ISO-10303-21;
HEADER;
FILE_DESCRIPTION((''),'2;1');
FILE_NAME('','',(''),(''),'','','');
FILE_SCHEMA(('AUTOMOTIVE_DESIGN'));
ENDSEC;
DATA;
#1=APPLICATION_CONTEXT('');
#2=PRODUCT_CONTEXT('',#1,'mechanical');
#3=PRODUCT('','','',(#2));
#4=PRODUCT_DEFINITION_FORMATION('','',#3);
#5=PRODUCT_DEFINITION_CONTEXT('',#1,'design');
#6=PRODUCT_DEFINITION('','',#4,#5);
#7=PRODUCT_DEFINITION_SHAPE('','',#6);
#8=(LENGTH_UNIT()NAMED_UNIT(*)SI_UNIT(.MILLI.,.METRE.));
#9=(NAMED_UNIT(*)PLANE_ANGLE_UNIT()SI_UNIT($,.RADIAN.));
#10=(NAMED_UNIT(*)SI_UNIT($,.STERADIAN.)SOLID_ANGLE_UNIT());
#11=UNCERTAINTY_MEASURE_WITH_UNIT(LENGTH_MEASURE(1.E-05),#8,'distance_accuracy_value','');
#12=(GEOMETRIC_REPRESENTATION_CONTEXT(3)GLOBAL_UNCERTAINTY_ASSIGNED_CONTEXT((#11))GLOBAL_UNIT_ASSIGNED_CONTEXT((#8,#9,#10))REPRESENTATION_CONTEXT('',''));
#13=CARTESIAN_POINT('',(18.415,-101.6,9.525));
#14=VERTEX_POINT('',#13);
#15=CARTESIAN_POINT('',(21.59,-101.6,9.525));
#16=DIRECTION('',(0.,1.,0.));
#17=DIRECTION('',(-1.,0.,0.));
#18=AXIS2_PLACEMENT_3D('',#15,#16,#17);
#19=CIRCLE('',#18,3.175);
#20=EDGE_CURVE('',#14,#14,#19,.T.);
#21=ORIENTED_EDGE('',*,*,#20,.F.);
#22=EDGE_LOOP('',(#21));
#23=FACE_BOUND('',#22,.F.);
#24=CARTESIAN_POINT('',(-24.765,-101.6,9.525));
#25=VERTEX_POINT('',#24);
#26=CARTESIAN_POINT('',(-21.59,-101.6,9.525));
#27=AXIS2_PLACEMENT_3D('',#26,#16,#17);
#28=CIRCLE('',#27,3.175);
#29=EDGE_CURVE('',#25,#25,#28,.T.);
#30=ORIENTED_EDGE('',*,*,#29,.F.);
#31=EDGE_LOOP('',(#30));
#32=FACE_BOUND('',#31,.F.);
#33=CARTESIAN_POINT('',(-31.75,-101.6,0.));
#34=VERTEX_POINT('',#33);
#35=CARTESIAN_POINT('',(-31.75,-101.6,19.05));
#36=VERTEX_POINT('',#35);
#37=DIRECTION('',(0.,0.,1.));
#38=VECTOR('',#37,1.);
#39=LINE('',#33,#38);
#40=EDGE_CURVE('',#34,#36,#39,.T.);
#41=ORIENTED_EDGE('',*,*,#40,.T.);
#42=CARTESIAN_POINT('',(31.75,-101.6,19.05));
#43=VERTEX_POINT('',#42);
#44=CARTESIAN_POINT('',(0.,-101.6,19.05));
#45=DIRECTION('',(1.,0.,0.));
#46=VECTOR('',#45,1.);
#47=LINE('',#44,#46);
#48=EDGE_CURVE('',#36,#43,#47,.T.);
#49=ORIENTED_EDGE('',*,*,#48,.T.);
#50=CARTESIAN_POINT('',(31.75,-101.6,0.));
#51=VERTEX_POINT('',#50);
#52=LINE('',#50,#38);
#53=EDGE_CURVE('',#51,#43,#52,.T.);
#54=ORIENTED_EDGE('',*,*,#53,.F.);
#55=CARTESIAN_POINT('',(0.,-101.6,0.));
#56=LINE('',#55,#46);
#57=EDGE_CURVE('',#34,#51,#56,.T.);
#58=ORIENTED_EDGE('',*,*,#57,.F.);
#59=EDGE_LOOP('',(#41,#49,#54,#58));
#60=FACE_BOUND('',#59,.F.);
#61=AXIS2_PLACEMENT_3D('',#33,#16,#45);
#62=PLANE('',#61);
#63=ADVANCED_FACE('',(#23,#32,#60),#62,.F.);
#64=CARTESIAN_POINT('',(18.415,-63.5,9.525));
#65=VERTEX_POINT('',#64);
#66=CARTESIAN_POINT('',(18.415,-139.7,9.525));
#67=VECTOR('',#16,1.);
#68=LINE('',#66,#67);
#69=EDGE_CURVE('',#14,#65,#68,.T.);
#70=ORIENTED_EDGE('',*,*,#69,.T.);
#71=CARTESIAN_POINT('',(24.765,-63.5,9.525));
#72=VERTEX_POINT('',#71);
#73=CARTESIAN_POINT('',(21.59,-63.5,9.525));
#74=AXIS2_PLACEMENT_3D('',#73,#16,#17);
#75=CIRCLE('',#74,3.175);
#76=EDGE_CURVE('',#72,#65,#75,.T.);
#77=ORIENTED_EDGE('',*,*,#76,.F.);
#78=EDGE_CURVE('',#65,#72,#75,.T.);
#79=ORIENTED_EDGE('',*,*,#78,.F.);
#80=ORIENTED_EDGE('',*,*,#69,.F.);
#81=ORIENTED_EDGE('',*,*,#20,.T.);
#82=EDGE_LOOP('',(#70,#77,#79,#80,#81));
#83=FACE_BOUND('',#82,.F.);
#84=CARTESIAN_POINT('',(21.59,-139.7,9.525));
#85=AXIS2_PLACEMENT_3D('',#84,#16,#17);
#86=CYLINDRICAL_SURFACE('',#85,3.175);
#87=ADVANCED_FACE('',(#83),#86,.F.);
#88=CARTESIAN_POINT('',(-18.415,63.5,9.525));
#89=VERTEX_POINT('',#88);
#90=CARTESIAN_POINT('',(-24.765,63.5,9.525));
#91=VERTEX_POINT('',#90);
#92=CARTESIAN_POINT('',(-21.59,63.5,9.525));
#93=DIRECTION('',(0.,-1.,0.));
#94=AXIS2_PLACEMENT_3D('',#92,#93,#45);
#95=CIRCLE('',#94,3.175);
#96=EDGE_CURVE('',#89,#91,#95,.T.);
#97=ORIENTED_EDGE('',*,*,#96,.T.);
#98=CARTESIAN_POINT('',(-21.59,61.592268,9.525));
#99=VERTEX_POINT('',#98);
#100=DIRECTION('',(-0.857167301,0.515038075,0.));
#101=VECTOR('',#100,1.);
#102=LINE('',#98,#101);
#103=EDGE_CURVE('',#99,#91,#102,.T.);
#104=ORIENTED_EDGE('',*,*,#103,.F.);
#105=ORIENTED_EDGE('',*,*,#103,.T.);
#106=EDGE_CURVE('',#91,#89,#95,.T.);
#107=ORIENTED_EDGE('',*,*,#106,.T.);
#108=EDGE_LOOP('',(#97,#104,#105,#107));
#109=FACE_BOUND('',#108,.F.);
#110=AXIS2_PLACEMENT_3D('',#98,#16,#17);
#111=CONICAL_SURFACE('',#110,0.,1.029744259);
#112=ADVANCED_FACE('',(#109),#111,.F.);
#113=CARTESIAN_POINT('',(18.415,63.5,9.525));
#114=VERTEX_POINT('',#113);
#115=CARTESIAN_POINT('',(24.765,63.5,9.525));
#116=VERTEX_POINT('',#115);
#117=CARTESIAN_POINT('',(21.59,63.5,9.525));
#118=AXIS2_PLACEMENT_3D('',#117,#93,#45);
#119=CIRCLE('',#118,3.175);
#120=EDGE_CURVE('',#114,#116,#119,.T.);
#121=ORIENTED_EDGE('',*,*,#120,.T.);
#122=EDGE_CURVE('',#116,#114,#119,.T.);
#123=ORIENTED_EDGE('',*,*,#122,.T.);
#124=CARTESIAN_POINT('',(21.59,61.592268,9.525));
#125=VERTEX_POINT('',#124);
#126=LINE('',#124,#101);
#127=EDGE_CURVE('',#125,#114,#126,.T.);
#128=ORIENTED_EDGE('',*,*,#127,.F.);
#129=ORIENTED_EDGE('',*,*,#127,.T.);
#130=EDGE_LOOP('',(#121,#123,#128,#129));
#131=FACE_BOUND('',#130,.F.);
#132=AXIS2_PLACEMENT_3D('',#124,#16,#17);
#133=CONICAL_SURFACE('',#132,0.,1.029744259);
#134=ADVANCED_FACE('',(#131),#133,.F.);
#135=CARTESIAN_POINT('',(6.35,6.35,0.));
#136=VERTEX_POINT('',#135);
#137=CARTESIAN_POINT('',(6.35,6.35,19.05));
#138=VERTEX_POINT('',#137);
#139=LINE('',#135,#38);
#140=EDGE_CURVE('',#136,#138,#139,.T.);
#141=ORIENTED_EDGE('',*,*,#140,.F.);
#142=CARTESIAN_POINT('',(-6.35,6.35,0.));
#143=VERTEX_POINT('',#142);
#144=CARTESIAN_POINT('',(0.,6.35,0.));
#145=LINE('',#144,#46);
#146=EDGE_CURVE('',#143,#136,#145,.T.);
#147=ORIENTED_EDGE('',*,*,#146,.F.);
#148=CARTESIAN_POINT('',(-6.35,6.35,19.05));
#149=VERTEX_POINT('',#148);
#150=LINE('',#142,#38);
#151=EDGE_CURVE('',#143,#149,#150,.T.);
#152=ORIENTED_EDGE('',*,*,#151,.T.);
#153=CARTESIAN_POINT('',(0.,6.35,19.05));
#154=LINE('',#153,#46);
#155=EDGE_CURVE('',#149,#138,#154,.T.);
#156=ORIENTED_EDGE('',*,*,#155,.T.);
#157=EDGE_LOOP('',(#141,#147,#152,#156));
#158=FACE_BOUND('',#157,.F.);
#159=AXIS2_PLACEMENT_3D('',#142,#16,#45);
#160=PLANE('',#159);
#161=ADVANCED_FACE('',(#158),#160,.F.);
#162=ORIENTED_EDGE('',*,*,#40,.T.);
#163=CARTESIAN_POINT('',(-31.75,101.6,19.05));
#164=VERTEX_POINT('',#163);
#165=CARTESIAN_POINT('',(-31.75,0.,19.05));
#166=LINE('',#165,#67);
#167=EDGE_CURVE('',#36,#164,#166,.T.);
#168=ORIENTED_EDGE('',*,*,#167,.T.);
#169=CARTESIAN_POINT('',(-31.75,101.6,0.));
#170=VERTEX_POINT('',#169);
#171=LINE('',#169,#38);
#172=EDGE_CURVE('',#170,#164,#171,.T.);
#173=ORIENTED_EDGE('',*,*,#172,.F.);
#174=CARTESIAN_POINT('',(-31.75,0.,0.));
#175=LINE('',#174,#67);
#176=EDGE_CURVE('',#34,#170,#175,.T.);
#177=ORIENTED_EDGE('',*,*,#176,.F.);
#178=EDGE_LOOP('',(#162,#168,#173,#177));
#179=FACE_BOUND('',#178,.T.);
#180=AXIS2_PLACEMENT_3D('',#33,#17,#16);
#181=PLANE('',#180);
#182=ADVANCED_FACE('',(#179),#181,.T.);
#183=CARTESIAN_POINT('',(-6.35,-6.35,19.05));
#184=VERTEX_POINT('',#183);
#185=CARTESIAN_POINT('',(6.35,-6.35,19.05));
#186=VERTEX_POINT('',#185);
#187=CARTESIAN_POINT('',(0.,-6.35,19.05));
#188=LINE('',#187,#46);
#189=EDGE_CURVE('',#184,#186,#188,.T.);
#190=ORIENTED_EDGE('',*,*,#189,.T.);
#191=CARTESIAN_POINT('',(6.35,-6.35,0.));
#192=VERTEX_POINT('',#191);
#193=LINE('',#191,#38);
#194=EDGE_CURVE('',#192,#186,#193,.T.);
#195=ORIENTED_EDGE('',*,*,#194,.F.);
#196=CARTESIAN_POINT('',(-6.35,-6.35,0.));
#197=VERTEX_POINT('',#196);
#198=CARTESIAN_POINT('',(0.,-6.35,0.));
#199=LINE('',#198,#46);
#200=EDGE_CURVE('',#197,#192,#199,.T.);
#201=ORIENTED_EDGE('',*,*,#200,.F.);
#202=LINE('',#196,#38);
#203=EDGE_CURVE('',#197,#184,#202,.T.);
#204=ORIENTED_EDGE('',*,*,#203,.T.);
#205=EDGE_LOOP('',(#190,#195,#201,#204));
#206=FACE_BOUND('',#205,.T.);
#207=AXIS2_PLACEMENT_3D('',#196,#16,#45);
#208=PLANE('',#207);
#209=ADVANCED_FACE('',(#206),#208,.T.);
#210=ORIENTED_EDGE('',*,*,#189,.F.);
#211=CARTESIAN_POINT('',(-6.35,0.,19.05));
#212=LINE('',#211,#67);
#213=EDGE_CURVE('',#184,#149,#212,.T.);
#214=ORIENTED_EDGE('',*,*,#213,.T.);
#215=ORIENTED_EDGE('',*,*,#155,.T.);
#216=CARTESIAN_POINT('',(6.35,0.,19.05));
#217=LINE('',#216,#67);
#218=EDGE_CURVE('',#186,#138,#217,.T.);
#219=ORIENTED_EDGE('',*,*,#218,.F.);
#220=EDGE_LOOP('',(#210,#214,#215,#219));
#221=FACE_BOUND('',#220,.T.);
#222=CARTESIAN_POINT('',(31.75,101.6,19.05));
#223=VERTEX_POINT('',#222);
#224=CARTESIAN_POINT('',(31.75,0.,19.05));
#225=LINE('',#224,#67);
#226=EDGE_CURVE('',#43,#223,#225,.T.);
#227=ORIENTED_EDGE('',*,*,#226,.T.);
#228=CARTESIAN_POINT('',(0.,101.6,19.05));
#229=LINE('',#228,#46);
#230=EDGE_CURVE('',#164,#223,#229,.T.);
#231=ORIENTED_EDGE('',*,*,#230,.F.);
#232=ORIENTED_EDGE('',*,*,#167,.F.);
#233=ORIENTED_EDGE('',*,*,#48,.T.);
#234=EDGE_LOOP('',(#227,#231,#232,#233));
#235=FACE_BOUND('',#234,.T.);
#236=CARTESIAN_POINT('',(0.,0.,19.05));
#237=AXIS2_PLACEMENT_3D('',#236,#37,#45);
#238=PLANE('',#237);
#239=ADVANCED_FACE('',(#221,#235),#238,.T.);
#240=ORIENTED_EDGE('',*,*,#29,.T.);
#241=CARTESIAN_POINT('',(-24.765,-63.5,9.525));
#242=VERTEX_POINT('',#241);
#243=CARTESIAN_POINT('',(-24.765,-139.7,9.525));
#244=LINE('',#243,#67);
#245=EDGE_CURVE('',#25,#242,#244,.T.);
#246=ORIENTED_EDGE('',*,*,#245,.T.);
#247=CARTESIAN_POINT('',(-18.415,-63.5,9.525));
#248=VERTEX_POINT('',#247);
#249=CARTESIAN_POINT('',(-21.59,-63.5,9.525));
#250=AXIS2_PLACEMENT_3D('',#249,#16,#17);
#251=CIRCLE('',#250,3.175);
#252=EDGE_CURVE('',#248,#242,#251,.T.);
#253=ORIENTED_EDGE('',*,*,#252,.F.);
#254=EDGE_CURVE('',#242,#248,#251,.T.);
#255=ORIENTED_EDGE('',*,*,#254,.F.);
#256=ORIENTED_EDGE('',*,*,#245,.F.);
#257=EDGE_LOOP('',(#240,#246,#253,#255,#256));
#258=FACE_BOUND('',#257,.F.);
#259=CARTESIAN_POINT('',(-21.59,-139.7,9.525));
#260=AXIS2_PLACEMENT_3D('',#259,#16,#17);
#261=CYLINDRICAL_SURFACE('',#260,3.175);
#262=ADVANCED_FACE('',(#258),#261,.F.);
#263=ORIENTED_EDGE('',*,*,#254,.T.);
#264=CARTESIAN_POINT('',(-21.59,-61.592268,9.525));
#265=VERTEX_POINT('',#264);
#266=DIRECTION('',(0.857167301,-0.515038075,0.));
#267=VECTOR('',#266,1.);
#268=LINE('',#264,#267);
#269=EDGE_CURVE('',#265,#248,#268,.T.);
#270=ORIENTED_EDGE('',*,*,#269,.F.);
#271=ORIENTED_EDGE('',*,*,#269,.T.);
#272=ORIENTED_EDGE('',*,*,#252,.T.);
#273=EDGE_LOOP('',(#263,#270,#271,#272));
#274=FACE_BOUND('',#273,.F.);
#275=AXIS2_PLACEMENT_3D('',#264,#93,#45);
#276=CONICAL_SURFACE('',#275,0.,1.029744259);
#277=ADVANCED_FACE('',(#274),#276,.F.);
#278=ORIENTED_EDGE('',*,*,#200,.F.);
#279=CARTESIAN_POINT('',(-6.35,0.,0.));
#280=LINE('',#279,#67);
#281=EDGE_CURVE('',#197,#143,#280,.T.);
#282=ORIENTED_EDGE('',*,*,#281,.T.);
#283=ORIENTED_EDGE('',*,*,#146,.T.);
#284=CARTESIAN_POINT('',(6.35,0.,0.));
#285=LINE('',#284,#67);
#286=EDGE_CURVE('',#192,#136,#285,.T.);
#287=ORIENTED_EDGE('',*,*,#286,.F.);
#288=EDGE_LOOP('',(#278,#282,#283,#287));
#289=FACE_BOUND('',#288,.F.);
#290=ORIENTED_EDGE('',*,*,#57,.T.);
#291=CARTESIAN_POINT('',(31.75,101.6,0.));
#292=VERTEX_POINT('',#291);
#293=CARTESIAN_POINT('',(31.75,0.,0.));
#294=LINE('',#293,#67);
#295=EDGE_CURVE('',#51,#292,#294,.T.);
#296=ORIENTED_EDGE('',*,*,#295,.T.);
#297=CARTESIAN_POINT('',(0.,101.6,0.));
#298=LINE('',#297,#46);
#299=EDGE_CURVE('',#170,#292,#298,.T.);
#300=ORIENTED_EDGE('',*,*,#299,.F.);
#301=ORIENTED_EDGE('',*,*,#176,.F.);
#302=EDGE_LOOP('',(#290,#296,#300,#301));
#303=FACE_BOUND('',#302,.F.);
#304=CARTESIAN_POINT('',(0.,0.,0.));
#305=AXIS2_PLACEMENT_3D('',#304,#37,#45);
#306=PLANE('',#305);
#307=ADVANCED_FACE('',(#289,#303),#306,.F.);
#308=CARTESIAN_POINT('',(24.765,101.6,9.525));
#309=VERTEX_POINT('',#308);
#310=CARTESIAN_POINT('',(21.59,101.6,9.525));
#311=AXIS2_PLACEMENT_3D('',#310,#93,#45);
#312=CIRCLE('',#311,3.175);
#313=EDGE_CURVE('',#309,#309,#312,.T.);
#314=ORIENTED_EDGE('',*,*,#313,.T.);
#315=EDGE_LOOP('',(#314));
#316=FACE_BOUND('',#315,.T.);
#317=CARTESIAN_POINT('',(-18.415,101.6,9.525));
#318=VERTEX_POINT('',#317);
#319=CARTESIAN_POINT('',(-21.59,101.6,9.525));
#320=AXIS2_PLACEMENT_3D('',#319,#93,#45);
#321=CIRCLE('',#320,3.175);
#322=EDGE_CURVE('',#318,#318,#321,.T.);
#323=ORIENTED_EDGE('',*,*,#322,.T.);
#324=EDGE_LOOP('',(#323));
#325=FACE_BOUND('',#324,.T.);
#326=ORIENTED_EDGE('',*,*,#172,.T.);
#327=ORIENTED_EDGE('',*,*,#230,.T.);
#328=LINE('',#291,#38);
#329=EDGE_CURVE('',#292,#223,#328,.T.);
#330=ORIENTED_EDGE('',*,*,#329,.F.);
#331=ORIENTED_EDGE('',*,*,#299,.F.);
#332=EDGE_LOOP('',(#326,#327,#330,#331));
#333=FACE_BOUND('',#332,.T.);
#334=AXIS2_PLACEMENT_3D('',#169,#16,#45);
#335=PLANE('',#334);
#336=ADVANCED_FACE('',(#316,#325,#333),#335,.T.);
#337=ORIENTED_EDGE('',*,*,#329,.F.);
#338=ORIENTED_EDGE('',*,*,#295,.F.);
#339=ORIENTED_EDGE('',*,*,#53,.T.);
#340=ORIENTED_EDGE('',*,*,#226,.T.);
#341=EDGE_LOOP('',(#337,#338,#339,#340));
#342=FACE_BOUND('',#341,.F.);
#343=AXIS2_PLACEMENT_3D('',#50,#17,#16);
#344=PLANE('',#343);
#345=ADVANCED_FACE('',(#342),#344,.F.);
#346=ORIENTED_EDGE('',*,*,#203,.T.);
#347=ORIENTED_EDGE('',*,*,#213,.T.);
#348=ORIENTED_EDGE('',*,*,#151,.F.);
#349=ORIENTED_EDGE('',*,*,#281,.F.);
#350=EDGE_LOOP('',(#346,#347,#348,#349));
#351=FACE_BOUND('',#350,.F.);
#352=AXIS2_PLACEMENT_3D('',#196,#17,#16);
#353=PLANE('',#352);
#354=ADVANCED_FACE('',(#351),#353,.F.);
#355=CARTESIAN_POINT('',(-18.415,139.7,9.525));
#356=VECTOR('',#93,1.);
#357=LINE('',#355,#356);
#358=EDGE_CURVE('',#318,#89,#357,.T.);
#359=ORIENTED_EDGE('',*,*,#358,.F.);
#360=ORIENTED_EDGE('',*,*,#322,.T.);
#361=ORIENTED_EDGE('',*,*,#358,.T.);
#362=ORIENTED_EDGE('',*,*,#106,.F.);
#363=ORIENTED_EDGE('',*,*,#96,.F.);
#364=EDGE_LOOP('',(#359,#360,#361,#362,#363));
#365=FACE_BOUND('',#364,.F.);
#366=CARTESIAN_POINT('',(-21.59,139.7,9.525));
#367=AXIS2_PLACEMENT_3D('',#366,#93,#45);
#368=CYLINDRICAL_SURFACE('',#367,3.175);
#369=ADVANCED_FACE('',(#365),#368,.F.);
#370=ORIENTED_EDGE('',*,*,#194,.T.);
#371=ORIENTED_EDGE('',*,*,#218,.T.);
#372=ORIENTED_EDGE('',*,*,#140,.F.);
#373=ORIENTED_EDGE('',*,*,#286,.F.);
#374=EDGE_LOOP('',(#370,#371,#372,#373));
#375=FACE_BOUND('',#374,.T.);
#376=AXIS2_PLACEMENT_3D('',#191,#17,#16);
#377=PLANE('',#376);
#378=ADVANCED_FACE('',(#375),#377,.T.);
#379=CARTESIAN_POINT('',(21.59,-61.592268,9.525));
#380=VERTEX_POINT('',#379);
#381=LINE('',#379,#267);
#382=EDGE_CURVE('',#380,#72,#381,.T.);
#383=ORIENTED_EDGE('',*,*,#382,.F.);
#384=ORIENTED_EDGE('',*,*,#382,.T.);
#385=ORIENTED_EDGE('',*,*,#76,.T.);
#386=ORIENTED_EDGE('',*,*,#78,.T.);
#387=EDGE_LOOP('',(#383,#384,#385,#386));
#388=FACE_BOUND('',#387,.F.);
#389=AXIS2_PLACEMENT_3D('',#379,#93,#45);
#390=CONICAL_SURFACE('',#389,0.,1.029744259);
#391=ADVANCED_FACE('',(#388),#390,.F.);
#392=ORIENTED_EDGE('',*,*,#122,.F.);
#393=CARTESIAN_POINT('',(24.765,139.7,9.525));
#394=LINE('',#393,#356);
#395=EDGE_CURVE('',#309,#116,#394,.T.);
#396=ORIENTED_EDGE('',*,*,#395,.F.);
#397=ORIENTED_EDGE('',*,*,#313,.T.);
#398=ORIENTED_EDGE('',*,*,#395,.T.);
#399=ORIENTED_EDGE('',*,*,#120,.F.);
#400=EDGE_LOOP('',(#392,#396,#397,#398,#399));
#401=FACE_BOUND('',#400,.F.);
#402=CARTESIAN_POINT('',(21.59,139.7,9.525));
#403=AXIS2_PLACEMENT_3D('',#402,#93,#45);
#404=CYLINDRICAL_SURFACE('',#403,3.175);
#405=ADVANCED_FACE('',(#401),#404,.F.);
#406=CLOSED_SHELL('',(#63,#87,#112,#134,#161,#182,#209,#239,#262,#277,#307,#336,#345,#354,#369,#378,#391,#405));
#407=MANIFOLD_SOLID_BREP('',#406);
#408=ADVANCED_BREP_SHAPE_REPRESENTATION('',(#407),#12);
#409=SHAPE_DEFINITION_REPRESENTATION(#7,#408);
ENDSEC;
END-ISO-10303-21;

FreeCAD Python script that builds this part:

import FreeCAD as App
import Part
import Sketcher

V = App.Vector
Q = App.Units.Quantity

doc = App.newDocument("Part")
params = doc.addObject("Spreadsheet::Sheet", "Params")
for row, (alias, value) in enumerate([
    ("sketch1_height", "8 in"),
    ("sketch1_width", "2.5 in"),
    ("sketch1_width2", "0.5 in"),
    ("pad1_length", "0.75 in"),
    ("sketch2_diameter", "0.25 in"),
    ("hole_diameter", "0.25 in"),
    ("hole_depth", "1.5 in"),
    ("sketch3_diameter", "0.25 in"),
    ("hole2_diameter", "0.25 in"),
    ("hole2_depth", "1.5 in"),
], start=1):
    params.set(f"A{row}", alias)
    params.set(f"B{row}", "=" + value)
    params.setAlias(f"B{row}", alias)

body = doc.addObject("PartDesign::Body", "Body")

sketch1 = body.newObject("Sketcher::SketchObject", "Sketch")
sketch1.AttachmentSupport = (doc.getObject("XY_Plane"), [""])
sketch1.MapMode = "FlatFace"
sketch1.addGeometry([
    Part.LineSegment(V(-32, 102, 0), V(-32, -102, 0)),
    Part.LineSegment(V(-32, -102, 0), V(32, -102, 0)),
    Part.LineSegment(V(32, -102, 0), V(32, 102, 0)),
    Part.LineSegment(V(32, 102, 0), V(-32, 102, 0)),
    Part.LineSegment(V(6, -6, 0), V(-6, -6, 0)),
    Part.LineSegment(V(-6, -6, 0), V(-6, 6, 0)),
    Part.LineSegment(V(-6, 6, 0), V(6, 6, 0)),
    Part.LineSegment(V(6, 6, 0), V(6, -6, 0)),
], False)
sketch1.addConstraint([
    Sketcher.Constraint("Coincident", 0, 2, 1, 1),
    Sketcher.Constraint("Coincident", 1, 2, 2, 1),
    Sketcher.Constraint("Coincident", 2, 2, 3, 1),
    Sketcher.Constraint("Coincident", 3, 2, 0, 1),
    Sketcher.Constraint("Coincident", 4, 2, 5, 1),
    Sketcher.Constraint("Coincident", 5, 2, 6, 1),
    Sketcher.Constraint("Coincident", 6, 2, 7, 1),
    Sketcher.Constraint("Coincident", 7, 2, 4, 1),
    Sketcher.Constraint("Vertical", 0),
    Sketcher.Constraint("Horizontal", 1),
    Sketcher.Constraint("Vertical", 2),
    Sketcher.Constraint("Horizontal", 3),
    Sketcher.Constraint("Horizontal", 4),
    Sketcher.Constraint("Vertical", 5),
    Sketcher.Constraint("Horizontal", 6),
    Sketcher.Constraint("Vertical", 7),
    Sketcher.Constraint("Symmetric", 0, 2, 2, 2, -1, 1),
    Sketcher.Constraint("Symmetric", 4, 2, 6, 2, -1, 1),
    Sketcher.Constraint("Equal", 6, 5),
    Sketcher.Constraint("DistanceY", 0, 2, 0, 1, Q("8 in")),
    Sketcher.Constraint("DistanceX", 1, 1, 1, 2, Q("2.5 in")),
    Sketcher.Constraint("DistanceX", 4, 2, 4, 1, Q("0.5 in")),
])
sketch1.setExpression("Constraints[19]", "Params.sketch1_height")
sketch1.setExpression("Constraints[20]", "Params.sketch1_width")
sketch1.setExpression("Constraints[21]", "Params.sketch1_width2")
pad1 = body.newObject("PartDesign::Pad", "Pad")
pad1.Profile = sketch1
pad1.setExpression("Length", "Params.pad1_length")

sketch2 = body.newObject("Sketcher::SketchObject", "Sketch001")
sketch2.AttachmentSupport = (doc.getObject("XZ_Plane"), [""])
sketch2.MapMode = "FlatFace"
sketch2.AttachmentOffset = App.Placement(V(0, 0, 4 * 25.4), App.Rotation())
sketch2.addGeometry([
    Part.Circle(V(-21.6, 9.5, 0), V(0, 0, 1), 3.2),
    Part.Circle(V(21.6, 9.5, 0), V(0, 0, 1), 3.2),
], False)
sketch2.addConstraint([
    Sketcher.Constraint("Equal", 0, 1),
    Sketcher.Constraint("Symmetric", 0, 3, 1, 3, -2),
    Sketcher.Constraint("Diameter", 0, Q("0.25 in")),
    Sketcher.Constraint("DistanceX", 0, 3, 1, 3, Q("1.7 in")),
    Sketcher.Constraint("DistanceY", -1, 1, 0, 3, Q("0.375 in")),
])
sketch2.setExpression("Constraints[2]", "Params.sketch2_diameter")
doc.recompute()
hole = body.newObject("PartDesign::Hole", "Hole")
hole.Profile = sketch2
hole.ThreadType = "None"
hole.setExpression("Diameter", "Params.hole_diameter")
hole.DepthType = "Dimension"
hole.setExpression("Depth", "Params.hole_depth")
hole.DrillPoint = "Angled"
hole.DrillPointAngle = 118

sketch3 = body.newObject("Sketcher::SketchObject", "Sketch002")
sketch3.AttachmentSupport = (doc.getObject("XZ_Plane"), [""])
sketch3.MapMode = "FlatFace"
sketch3.AttachmentOffset = App.Placement(V(0, 0, -4 * 25.4), App.Rotation())
sketch3.addGeometry([
    Part.Circle(V(-21.6, 9.5, 0), V(0, 0, 1), 3.2),
    Part.Circle(V(21.6, 9.5, 0), V(0, 0, 1), 3.2),
], False)
sketch3.addConstraint([
    Sketcher.Constraint("Equal", 0, 1),
    Sketcher.Constraint("Symmetric", 0, 3, 1, 3, -2),
    Sketcher.Constraint("Diameter", 0, Q("0.25 in")),
    Sketcher.Constraint("DistanceX", 0, 3, 1, 3, Q("1.7 in")),
    Sketcher.Constraint("DistanceY", -1, 1, 0, 3, Q("0.375 in")),
])
sketch3.setExpression("Constraints[2]", "Params.sketch3_diameter")
doc.recompute()
hole2 = body.newObject("PartDesign::Hole", "Hole001")
hole2.Profile = sketch3
hole2.ThreadType = "None"
hole2.setExpression("Diameter", "Params.hole2_diameter")
hole2.DepthType = "Dimension"
hole2.setExpression("Depth", "Params.hole2_depth")
hole2.DrillPoint = "Angled"
hole2.DrillPointAngle = 118
hole2.Reversed = True

doc.recompute()
